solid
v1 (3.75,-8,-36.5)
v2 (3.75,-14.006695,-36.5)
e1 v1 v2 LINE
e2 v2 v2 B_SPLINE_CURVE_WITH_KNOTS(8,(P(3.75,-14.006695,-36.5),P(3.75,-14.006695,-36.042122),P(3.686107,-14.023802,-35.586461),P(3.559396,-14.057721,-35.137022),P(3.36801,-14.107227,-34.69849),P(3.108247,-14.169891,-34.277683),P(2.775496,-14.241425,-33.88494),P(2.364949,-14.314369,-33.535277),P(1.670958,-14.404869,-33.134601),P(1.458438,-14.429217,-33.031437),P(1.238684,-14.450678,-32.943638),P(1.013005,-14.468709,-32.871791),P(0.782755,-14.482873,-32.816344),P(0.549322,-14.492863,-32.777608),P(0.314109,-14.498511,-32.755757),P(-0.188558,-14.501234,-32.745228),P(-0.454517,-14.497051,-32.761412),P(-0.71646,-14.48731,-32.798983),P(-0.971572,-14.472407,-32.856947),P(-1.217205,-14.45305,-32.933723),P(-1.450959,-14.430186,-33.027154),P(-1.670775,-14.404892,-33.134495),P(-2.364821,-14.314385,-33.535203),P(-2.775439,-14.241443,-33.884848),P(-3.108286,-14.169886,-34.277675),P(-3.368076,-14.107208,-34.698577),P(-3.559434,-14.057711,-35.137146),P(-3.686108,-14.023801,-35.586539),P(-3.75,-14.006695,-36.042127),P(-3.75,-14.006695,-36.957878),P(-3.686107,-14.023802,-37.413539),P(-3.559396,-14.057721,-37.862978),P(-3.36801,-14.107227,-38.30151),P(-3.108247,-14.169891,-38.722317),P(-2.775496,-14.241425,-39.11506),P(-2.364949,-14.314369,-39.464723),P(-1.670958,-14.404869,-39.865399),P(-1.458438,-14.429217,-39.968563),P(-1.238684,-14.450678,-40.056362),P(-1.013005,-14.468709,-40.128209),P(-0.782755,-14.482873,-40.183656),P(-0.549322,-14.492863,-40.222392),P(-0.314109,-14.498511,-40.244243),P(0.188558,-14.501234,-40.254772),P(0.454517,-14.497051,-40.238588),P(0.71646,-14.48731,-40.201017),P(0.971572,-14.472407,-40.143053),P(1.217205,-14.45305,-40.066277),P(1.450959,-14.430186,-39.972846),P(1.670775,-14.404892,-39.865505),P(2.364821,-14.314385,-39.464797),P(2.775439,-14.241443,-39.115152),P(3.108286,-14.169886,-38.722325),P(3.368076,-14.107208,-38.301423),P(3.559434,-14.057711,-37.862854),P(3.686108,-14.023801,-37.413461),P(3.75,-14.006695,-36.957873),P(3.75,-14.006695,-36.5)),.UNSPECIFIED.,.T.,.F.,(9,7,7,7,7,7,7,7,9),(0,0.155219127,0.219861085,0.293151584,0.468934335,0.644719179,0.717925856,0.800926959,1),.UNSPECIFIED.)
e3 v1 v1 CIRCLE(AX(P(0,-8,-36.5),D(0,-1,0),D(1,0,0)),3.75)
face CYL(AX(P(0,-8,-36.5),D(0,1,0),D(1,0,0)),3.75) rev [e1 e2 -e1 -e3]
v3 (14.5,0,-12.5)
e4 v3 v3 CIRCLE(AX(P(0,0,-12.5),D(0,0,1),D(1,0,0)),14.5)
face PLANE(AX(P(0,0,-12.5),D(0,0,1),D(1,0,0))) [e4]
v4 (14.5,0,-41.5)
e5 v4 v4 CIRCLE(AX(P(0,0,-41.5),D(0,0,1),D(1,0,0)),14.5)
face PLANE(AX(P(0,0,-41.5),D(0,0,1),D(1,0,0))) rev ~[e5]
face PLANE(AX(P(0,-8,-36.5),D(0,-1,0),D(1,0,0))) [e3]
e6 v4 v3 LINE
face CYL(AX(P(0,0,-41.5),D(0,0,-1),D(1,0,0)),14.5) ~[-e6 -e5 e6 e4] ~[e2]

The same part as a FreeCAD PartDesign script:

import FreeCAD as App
import Part
import Sketcher
from FreeCAD import Vector
Q = App.Units.Quantity

doc = App.newDocument("Part")
params = doc.addObject("Spreadsheet::Sheet", "Params")
for row, (alias, value) in enumerate([
    ("sketch1_diameter", "7.5 mm"),
    ("pad1_length", "10 mm"),
    ("sketch2_diameter", "29 mm"),
    ("pad2_length", "29 mm"),
], start=1):
    params.set(f"A{row}", alias)
    params.set(f"B{row}", "=" + value)
    params.setAlias(f"B{row}", alias)

body = doc.addObject("PartDesign::Body", "Body")

# Sketch on XZ plane
sketch1 = doc.addObject("Sketcher::SketchObject", "Sketch")
body.addObject(sketch1)
sketch1.AttachmentSupport = (doc.XZ_Plane, [""])
sketch1.MapMode = "FlatFace"
sketch1.AttachmentOffset = App.Placement(Vector(0, 0, 8), App.Rotation())
sketch1.addGeometry(Part.Circle(Vector(0, -36.5, 0), Vector(0, 0, 1), 3.8), False)
sketch1.addConstraint(Sketcher.Constraint("PointOnObject", 0, 3, -2))
sketch1.addConstraint(Sketcher.Constraint("Diameter", 0, Q("7.5 mm")))
sketch1.addConstraint(Sketcher.Constraint("DistanceY", 0, 3, -1, 1, Q("36.5 mm")))
sketch1.setExpression("Constraints[1]", "Params.sketch1_diameter")
pad1 = doc.addObject("PartDesign::Pad", "Pad")
body.addObject(pad1)
pad1.Profile = sketch1
pad1.setExpression("Length", "Params.pad1_length")
body2 = doc.addObject("PartDesign::Body", "Body001")

# Sketch on XY plane
sketch2 = doc.addObject("Sketcher::SketchObject", "Sketch001")
body2.addObject(sketch2)
sketch2.AttachmentSupport = (doc.getObject("XY_Plane001"), [""])
sketch2.MapMode = "FlatFace"
sketch2.AttachmentOffset = App.Placement(Vector(0, 0, -41.5), App.Rotation())
sketch2.addGeometry(Part.Circle(Vector(0, 0, 0), Vector(0, 0, 1), 14), False)
sketch2.addConstraint(Sketcher.Constraint("Coincident", 0, 3, -1, 1))
sketch2.addConstraint(Sketcher.Constraint("Diameter", 0, Q("29 mm")))
sketch2.setExpression("Constraints[1]", "Params.sketch2_diameter")
pad2 = doc.addObject("PartDesign::Pad", "Pad001")
body2.addObject(pad2)
pad2.Profile = sketch2
pad2.setExpression("Length", "Params.pad2_length")
doc.recompute()

boolean = doc.addObject("PartDesign::Boolean", "Boolean")
body2.addObject(boolean)
boolean.Type = "Cut"
boolean.addObjects([body])

doc.recompute()
